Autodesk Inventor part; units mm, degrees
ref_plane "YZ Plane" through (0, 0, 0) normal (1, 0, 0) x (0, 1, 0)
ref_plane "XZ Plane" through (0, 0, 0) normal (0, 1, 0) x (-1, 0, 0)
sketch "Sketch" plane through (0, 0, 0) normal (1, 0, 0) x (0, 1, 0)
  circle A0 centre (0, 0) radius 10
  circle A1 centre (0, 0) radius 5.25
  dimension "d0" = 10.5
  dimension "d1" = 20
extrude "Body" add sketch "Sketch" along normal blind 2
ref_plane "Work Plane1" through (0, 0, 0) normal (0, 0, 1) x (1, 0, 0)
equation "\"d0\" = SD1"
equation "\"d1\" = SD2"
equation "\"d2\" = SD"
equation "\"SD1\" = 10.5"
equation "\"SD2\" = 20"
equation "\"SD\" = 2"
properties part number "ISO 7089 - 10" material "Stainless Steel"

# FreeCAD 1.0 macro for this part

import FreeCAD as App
import Part
import Sketcher
Q = App.Units.Quantity

doc = App.newDocument("Part")
body = doc.addObject("PartDesign::Body", "Body")

# Sketch on YZ plane
sketch1 = body.newObject("Sketcher::SketchObject", "Sketch")
sketch1.AttachmentSupport = (doc.getObject("YZ_Plane"), [""])
sketch1.MapMode = "FlatFace"
sketch1.addGeometry([
    Part.Circle(App.Vector(0, 0, 0), App.Vector(0, 0, 1), 10),
    Part.Circle(App.Vector(0, 0, 0), App.Vector(0, 0, 1), 5),
], False)
sketch1.addConstraint([
    Sketcher.Constraint("Coincident", 0, 3, -1, 1),
    Sketcher.Constraint("Coincident", 1, 3, -1, 1),
    Sketcher.Constraint("Diameter", 0, Q("20 mm")),
    Sketcher.Constraint("Diameter", 1, Q("10.5 mm")),
])
pad1 = body.newObject("PartDesign::Pad", "Pad")
pad1.Profile = sketch1
pad1.Length = 2

doc.recompute()
